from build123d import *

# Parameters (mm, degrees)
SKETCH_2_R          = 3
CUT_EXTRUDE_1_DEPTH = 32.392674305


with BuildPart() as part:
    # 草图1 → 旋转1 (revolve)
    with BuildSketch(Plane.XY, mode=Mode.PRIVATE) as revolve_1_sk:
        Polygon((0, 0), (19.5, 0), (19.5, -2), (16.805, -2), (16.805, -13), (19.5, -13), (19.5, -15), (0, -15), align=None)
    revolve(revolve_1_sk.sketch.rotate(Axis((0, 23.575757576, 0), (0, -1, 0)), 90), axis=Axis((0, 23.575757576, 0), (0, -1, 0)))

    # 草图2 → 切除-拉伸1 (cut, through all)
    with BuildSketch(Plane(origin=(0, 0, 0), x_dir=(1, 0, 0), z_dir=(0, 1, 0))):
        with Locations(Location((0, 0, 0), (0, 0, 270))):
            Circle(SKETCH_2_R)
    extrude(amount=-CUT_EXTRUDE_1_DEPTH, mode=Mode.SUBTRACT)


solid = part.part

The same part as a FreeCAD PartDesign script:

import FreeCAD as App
import Part
import Sketcher


def add_polygon(sketch, points):
    """Adds a closed chain of lines whose ends are joined by coincident constraints."""
    first, n = sketch.GeometryCount, len(points)
    for a, b in zip(points, points[1:] + points[:1]):
        sketch.addGeometry(Part.LineSegment(App.Vector(*a, 0), App.Vector(*b, 0)), False)
    for i in range(n):
        sketch.addConstraint(Sketcher.Constraint("Coincident", first + i, 2, first + (i + 1) % n, 1))

doc = App.newDocument("Part")
body = doc.addObject("PartDesign::Body", "Body")

# Sketch on XY plane
sketch1 = body.newObject("Sketcher::SketchObject", "Sketch")
sketch1.AttachmentSupport = (doc.getObject("XY_Plane"), [""])
sketch1.MapMode = "FlatFace"
add_polygon(sketch1, [(19.5, 0), (0, 0), (0, -15), (19.5, -15), (19.5, -13), (16.805, -13), (16.805, -2), (19.5, -2)])  # lines 0-7
sketch1.addConstraint(Sketcher.Constraint("Horizontal", 0))
sketch1.addConstraint(Sketcher.Constraint("Vertical", 1))
sketch1.addConstraint(Sketcher.Constraint("Horizontal", 2))
sketch1.addConstraint(Sketcher.Constraint("Vertical", 3))
sketch1.addConstraint(Sketcher.Constraint("Horizontal", 4))
sketch1.addConstraint(Sketcher.Constraint("Vertical", 5))
sketch1.addConstraint(Sketcher.Constraint("Horizontal", 6))
sketch1.addConstraint(Sketcher.Constraint("Vertical", 7))
sketch1.addConstraint(Sketcher.Constraint("Coincident", 0, 2, -1, 1))
sketch1.addConstraint(Sketcher.Constraint("Vertical", 3, 2, 6, 2))
sketch1.addConstraint(Sketcher.Constraint("Equal", 3, 7))
sketch1.addConstraint(Sketcher.Constraint("DistanceY", 1, 2, 1, 1, 15.0))
sketch1.addConstraint(Sketcher.Constraint("DistanceY", 3, 1, 3, 2, 2.0))
sketch1.addConstraint(Sketcher.Constraint("DistanceX", 0, 2, 0, 1, 19.5))
sketch1.addConstraint(Sketcher.Constraint("DistanceX", 4, 2, 4, 1, 2.695))
revolution = body.newObject("PartDesign::Revolution", "Revolution")
revolution.Profile = sketch1
revolution.ReferenceAxis = (sketch1, ["V_Axis"])
revolution.Angle = 360

# Sketch on XZ plane
sketch2 = body.newObject("Sketcher::SketchObject", "Sketch001")
sketch2.AttachmentSupport = (doc.getObject("XZ_Plane"), [""])
sketch2.MapMode = "FlatFace"
sketch2.addGeometry(Part.Circle(App.Vector(0, 0, 0), App.Vector(0, 0, 1), 3), False)
sketch2.addConstraint(Sketcher.Constraint("Coincident", 0, 3, -1, 1))
sketch2.addConstraint(Sketcher.Constraint("Diameter", 0, 6.0))
pocket1 = body.newObject("PartDesign::Pocket", "Pocket")
pocket1.Profile = sketch2
pocket1.Type = "ThroughAll"
pocket1.Reversed = True

doc.recompute()
